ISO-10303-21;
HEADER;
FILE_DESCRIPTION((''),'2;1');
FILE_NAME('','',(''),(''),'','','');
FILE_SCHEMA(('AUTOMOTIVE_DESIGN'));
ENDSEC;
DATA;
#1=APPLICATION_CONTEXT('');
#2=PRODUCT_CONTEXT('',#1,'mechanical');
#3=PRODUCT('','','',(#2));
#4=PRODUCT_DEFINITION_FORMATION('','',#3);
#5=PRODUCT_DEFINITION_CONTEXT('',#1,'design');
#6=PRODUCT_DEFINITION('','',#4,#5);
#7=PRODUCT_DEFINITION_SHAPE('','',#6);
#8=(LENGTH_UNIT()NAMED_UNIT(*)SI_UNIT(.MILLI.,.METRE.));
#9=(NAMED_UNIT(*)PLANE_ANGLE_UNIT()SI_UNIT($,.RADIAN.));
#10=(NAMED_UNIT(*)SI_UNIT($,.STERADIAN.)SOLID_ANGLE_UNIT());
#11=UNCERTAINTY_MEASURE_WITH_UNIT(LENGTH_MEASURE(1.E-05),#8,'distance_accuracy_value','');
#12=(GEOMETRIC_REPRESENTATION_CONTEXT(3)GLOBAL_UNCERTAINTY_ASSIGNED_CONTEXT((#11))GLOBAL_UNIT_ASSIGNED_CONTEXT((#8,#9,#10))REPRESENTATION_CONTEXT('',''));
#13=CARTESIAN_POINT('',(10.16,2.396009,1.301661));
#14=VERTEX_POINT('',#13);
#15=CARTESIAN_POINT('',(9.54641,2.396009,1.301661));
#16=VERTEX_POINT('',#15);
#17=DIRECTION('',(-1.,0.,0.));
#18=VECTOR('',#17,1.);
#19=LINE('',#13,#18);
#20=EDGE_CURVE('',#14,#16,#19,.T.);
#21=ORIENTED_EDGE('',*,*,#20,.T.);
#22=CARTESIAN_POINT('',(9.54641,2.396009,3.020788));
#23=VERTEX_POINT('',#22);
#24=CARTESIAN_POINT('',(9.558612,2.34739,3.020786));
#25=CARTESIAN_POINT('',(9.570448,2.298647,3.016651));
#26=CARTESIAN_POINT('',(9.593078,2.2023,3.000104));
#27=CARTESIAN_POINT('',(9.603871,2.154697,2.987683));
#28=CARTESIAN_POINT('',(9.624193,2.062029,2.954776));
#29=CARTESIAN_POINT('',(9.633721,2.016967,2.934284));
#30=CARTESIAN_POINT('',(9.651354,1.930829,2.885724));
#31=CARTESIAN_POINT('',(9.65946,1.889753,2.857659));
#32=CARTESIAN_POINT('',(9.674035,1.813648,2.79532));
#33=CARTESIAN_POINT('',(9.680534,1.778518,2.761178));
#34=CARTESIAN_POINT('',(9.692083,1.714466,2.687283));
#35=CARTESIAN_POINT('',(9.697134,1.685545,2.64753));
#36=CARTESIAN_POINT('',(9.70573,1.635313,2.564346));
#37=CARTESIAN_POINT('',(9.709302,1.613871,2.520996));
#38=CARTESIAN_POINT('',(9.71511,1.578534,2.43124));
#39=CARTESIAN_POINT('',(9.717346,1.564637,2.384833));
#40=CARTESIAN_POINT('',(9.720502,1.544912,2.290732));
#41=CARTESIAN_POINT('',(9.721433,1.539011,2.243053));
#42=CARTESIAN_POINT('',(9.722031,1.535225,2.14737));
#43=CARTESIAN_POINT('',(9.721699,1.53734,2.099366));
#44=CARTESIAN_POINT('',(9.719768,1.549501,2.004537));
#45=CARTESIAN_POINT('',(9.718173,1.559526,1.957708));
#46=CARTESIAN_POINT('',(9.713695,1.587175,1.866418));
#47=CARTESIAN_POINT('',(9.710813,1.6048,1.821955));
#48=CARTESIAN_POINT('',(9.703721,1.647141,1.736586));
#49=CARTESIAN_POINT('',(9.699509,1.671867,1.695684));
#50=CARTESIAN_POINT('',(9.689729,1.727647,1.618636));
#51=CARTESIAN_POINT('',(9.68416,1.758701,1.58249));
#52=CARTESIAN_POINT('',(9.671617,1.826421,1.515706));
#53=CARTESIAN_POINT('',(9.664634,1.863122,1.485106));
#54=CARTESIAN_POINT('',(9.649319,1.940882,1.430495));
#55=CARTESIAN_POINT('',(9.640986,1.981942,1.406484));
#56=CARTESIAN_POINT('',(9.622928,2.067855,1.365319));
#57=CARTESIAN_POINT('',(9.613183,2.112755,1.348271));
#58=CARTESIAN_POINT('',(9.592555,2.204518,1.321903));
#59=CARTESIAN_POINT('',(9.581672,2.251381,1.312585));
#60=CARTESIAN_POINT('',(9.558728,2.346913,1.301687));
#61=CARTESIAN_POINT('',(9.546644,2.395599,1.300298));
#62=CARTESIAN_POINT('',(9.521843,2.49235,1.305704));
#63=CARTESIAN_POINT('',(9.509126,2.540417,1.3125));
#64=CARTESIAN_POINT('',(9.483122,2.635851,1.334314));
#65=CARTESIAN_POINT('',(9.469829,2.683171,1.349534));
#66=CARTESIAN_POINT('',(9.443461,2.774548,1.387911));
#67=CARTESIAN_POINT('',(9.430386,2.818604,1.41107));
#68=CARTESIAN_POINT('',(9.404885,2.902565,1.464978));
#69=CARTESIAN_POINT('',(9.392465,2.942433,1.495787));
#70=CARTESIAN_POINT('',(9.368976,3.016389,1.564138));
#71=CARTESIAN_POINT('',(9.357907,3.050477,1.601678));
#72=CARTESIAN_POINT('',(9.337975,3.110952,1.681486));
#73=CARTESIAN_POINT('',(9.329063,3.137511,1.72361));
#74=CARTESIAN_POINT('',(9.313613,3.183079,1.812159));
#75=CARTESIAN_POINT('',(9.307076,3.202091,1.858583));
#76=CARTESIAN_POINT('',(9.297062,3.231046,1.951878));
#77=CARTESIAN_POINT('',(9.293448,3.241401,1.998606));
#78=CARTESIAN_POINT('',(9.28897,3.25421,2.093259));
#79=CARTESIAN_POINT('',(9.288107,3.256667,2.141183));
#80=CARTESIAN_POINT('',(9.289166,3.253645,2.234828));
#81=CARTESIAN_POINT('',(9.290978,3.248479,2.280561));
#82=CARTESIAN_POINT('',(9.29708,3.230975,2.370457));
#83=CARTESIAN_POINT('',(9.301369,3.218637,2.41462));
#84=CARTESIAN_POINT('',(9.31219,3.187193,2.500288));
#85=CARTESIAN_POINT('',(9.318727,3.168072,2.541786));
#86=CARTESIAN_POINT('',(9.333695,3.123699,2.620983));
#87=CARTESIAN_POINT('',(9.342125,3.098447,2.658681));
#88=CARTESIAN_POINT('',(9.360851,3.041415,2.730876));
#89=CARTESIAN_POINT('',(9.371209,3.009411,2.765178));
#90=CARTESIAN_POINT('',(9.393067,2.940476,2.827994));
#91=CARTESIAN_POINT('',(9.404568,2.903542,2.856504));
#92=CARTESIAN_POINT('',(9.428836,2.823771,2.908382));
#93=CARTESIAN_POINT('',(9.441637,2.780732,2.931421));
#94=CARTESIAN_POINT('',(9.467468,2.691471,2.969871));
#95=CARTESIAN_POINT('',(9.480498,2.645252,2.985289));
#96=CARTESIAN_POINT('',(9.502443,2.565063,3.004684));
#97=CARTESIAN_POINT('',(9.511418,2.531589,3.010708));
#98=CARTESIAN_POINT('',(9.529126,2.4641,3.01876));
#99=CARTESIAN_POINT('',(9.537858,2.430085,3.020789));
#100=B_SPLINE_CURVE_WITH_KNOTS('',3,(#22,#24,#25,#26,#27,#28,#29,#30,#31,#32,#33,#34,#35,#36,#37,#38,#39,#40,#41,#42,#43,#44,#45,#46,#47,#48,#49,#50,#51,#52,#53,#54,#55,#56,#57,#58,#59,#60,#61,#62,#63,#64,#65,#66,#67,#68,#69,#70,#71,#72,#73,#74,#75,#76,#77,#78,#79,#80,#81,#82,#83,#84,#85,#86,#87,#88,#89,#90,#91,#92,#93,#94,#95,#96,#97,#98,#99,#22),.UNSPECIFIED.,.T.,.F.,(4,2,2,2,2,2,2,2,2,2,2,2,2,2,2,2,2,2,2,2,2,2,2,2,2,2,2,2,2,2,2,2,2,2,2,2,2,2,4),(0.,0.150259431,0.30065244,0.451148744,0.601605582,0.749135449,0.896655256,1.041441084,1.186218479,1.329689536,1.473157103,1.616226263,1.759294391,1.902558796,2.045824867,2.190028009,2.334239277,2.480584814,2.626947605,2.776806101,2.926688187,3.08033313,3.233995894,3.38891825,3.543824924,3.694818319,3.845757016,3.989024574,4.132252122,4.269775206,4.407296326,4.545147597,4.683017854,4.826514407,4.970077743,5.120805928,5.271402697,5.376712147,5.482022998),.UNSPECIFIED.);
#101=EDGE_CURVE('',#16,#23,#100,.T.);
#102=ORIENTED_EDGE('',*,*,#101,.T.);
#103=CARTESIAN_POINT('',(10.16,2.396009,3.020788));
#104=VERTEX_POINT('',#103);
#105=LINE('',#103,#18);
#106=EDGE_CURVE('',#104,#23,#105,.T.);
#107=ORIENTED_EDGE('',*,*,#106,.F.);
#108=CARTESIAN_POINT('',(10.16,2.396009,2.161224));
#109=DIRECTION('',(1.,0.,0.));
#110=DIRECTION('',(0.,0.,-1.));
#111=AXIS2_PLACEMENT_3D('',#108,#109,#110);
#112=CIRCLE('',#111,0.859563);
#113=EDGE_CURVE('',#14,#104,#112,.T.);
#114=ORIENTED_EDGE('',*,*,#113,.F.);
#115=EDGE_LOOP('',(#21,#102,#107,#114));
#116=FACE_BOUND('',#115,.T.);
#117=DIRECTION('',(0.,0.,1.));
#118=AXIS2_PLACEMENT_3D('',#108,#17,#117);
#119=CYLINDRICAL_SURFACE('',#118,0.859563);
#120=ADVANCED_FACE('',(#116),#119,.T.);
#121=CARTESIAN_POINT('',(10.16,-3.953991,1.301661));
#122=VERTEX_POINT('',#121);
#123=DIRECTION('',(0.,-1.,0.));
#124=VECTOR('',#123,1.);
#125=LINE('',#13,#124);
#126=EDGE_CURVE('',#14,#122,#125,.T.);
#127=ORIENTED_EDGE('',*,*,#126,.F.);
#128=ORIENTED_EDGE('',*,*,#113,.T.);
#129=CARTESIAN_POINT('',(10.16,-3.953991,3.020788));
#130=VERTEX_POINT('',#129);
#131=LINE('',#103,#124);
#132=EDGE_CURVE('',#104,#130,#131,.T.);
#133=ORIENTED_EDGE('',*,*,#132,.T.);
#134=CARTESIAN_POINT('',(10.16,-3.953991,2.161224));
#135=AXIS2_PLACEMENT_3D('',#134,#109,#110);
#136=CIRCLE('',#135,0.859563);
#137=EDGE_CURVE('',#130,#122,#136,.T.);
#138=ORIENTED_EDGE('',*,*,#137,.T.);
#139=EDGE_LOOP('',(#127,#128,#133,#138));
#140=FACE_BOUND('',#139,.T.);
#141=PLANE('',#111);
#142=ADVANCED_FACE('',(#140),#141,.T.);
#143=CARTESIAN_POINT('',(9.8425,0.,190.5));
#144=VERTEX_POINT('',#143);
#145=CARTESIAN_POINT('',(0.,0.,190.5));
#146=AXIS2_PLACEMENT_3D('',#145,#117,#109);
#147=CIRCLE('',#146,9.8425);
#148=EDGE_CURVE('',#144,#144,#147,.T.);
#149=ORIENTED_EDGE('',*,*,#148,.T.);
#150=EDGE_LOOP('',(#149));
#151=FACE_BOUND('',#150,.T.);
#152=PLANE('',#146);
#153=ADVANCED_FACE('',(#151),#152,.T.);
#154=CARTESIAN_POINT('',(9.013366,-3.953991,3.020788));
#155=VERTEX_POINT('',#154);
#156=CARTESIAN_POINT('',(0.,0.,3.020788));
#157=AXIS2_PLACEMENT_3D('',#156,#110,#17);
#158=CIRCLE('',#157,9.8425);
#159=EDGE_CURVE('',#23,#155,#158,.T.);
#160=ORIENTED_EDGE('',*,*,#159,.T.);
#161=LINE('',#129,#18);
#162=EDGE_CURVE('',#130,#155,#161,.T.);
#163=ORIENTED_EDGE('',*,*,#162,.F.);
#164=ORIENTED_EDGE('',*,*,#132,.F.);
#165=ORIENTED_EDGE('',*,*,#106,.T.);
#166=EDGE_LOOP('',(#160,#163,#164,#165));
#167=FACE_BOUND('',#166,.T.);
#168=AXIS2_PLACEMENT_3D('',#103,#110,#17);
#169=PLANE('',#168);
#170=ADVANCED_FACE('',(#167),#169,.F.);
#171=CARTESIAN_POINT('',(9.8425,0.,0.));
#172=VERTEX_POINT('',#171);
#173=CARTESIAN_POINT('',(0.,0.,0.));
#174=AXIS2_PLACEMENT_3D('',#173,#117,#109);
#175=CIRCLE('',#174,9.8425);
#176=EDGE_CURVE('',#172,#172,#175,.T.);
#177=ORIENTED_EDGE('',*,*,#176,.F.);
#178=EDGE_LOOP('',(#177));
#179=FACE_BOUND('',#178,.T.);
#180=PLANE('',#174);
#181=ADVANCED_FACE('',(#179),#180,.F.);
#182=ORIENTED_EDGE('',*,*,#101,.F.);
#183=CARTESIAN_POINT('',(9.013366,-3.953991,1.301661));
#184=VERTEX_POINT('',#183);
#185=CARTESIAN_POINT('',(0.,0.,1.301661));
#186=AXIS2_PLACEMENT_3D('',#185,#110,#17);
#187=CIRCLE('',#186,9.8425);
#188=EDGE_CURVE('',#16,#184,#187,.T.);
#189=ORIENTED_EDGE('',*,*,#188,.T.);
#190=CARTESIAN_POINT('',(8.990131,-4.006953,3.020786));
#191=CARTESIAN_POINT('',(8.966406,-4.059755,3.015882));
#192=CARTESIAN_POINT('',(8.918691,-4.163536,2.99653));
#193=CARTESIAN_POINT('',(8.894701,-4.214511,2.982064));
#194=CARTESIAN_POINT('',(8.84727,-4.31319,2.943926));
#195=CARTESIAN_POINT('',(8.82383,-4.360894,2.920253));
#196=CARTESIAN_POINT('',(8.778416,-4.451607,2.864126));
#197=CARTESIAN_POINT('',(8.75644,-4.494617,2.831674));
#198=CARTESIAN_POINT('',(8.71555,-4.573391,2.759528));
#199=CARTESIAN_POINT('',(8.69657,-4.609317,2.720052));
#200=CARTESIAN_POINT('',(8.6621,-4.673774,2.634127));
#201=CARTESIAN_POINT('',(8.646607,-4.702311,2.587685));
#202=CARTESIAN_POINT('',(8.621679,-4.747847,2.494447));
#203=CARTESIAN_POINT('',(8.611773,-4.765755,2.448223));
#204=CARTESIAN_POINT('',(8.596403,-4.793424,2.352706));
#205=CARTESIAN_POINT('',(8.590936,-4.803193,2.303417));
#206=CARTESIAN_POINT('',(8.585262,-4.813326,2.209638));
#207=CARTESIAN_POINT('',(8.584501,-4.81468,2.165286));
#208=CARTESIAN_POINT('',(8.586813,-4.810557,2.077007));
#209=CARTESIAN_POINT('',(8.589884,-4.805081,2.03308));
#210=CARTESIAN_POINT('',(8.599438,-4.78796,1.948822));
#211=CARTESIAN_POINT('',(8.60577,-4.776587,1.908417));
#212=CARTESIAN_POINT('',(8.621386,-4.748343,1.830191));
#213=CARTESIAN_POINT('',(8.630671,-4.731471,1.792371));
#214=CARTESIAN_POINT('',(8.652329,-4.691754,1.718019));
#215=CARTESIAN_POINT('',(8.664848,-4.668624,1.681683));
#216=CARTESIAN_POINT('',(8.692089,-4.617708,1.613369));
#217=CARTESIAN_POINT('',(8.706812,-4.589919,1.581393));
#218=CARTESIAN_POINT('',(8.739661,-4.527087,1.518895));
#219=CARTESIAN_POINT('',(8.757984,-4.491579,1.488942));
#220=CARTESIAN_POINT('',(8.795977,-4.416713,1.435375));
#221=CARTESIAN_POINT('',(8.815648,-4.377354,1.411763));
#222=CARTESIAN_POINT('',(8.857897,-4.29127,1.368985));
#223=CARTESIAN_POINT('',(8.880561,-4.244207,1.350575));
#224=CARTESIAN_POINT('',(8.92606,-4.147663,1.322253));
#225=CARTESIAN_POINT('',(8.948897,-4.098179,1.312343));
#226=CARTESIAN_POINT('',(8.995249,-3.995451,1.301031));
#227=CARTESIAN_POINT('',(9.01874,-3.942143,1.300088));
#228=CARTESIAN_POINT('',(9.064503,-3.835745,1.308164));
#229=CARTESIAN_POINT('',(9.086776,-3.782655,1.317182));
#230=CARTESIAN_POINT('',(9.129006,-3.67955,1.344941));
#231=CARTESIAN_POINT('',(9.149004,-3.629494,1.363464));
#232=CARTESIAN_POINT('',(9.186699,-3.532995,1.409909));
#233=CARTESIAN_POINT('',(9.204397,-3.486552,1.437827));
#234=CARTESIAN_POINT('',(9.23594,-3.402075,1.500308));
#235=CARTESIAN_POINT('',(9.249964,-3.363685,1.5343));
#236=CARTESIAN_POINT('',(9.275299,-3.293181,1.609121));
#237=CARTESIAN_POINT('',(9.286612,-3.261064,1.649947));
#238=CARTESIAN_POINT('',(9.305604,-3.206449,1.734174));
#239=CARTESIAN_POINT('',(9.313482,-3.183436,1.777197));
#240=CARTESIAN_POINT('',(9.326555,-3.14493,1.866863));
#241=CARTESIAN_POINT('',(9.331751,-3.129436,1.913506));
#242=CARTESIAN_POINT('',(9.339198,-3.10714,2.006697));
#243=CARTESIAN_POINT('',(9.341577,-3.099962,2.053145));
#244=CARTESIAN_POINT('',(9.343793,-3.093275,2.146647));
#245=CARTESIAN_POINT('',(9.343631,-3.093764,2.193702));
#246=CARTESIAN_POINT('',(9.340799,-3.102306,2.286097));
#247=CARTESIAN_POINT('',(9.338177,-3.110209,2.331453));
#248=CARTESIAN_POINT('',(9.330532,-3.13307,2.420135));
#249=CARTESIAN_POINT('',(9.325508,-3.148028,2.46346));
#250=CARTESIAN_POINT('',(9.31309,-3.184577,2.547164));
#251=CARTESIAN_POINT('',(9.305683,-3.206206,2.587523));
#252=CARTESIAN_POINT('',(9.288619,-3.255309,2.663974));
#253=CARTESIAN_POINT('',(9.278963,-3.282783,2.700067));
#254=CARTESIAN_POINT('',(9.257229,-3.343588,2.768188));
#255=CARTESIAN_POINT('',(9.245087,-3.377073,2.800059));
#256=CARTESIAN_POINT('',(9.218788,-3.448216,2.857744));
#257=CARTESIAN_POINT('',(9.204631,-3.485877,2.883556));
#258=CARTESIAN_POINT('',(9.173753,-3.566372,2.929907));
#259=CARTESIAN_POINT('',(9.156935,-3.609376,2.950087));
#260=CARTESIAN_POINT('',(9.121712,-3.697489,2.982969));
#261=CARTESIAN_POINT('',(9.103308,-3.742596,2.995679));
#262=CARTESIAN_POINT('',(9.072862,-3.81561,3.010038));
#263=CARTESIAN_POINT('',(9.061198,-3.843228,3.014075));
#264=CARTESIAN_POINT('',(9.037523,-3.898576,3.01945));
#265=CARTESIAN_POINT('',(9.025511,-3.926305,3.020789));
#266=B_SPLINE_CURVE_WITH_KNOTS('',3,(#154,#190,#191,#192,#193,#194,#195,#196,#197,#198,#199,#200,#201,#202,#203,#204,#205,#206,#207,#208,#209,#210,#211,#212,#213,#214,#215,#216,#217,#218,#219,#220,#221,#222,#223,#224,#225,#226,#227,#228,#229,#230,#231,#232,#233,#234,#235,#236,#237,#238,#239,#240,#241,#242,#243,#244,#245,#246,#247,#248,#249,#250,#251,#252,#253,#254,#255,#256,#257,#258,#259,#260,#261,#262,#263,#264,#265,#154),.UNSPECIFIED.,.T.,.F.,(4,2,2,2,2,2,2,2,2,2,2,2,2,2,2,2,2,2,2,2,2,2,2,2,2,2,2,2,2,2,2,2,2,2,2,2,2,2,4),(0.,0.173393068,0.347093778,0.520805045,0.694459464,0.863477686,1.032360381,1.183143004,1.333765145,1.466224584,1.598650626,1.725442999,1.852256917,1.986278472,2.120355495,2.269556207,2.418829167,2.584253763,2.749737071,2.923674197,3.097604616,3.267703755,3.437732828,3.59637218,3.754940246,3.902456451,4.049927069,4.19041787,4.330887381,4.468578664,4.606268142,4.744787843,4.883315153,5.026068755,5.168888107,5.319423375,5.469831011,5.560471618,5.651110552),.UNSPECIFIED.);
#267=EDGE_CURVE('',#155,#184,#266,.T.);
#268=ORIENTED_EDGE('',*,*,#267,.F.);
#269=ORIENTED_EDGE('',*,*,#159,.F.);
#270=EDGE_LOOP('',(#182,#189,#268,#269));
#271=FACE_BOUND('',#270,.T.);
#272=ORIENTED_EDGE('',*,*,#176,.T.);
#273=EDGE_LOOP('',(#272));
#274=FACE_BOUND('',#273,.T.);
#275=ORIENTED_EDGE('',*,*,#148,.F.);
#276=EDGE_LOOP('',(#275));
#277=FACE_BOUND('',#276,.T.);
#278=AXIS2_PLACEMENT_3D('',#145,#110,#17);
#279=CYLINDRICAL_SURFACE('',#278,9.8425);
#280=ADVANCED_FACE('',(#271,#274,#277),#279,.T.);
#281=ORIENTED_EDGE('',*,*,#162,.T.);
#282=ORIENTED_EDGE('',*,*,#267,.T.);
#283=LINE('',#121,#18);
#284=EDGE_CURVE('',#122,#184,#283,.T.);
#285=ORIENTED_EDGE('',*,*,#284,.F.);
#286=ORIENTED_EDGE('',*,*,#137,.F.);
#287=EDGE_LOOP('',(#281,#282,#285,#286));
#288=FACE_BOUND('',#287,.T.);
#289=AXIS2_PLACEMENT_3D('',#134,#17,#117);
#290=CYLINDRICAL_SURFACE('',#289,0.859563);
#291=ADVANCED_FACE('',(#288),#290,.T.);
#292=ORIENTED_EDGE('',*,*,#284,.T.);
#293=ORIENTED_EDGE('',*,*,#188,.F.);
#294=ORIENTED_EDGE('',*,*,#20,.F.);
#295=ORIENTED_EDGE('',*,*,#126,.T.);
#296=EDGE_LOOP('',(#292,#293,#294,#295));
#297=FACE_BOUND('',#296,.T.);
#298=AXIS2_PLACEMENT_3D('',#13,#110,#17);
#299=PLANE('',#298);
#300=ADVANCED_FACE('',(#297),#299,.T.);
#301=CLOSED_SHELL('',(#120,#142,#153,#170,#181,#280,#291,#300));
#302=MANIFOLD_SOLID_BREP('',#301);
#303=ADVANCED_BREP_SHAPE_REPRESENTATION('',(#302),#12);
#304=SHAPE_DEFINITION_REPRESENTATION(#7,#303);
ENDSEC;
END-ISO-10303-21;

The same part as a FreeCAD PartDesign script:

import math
import FreeCAD as App
import Part
import Sketcher
from FreeCAD import Vector
Q = App.Units.Quantity

doc = App.newDocument("Part")
body = doc.addObject("PartDesign::Body", "Body")

sketch1 = body.newObject("Sketcher::SketchObject", "Sketch")
sketch1.AttachmentSupport = (doc.getObject("XY_Plane"), [""])
sketch1.MapMode = "FlatFace"
sketch1.addGeometry(Part.Circle(Vector(0, 0, 0), Vector(0, 0, 1), 9.8425), False)
sketch1.addConstraint([
    Sketcher.Constraint("Coincident", 0, 3, -1, 1),
    Sketcher.Constraint("Diameter", 0, Q("0.775 in")),
])
pad1 = body.newObject("PartDesign::Pad", "Pad")
pad1.Profile = sketch1
pad1.Length = Q("7.5 in")

sketch2 = body.newObject("Sketcher::SketchObject", "Sketch001")
sketch2.AttachmentSupport = (doc.getObject("YZ_Plane"), [""])
sketch2.MapMode = "FlatFace"
sketch2.addGeometry([
    Part.LineSegment(Vector(-3.953991, 1.301661, 0), Vector(2.396009, 1.301661, 0)),
    Part.ArcOfCircle(Part.Circle(Vector(2.396009, 2.161224, 0), Vector(0, 0, 1), 0.859563), math.radians(-90), math.radians(90)),
    Part.LineSegment(Vector(2.396009, 3.020788, 0), Vector(-3.953991, 3.020788, 0)),
    Part.ArcOfCircle(Part.Circle(Vector(-3.953991, 2.161224, 0), Vector(0, 0, 1), 0.859563), math.radians(90), math.radians(270)),
], False)
sketch2.addConstraint([
    Sketcher.Constraint("Tangent", 0, 2, 1, 1),
    Sketcher.Constraint("Tangent", 1, 2, 2, 1),
    Sketcher.Constraint("Tangent", 2, 2, 3, 1),
    Sketcher.Constraint("Tangent", 3, 2, 0, 1),
    Sketcher.Constraint("Horizontal", 0),
    Sketcher.Constraint("Horizontal", 2),
    Sketcher.Constraint("DistanceX", 0, 1, 0, 2, Q("0.25 in")),
    Sketcher.Constraint("Radius", 1, Q("0.859563 mm")),
    Sketcher.Constraint("DistanceX", -1, 1, 1, 3, Q("2.396009 mm")),
    Sketcher.Constraint("DistanceY", -1, 1, 0, 2, Q("1.301661 mm")),
])
pad2 = body.newObject("PartDesign::Pad", "Pad001")
pad2.Profile = sketch2
pad2.Length = Q("0.4 in")

doc.recompute()
